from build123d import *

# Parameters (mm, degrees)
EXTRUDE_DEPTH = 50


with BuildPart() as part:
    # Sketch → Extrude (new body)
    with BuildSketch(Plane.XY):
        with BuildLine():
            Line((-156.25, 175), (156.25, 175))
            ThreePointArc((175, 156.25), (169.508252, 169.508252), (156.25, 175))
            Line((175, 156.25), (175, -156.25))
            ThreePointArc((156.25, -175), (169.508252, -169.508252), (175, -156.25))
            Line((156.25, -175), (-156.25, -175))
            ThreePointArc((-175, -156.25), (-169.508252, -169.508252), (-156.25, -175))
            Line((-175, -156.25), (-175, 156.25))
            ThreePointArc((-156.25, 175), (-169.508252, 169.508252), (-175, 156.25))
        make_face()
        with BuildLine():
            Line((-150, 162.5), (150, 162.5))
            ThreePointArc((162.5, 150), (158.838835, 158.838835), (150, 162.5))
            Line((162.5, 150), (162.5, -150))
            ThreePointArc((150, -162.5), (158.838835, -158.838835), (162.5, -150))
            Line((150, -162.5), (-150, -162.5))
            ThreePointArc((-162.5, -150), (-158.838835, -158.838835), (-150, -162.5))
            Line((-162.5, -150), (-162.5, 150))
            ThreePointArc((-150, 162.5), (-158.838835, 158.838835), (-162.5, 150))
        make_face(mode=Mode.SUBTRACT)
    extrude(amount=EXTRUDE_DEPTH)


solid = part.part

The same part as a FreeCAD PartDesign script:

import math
import FreeCAD as App
import Part
import Sketcher

V = App.Vector
Q = App.Units.Quantity

doc = App.newDocument("Part")
body = doc.addObject("PartDesign::Body", "Body")

# Sketch on XY plane
sketch1 = doc.addObject("Sketcher::SketchObject", "Sketch")
body.addObject(sketch1)
sketch1.AttachmentSupport = (doc.XY_Plane, [""])
sketch1.MapMode = "FlatFace"
sketch1.addGeometry(Part.LineSegment(V(156, 175, 0), V(-156, 175, 0)), False)
sketch1.addGeometry(Part.ArcOfCircle(Part.Circle(V(-156, 156, 0), V(0, 0, 1), 19), math.radians(90), math.radians(180)), False)
sketch1.addGeometry(Part.LineSegment(V(-175, 156, 0), V(-175, -156, 0)), False)
sketch1.addGeometry(Part.ArcOfCircle(Part.Circle(V(-156, -156, 0), V(0, 0, 1), 19), math.radians(-180), math.radians(-90)), False)
sketch1.addGeometry(Part.LineSegment(V(-156, -175, 0), V(156, -175, 0)), False)
sketch1.addGeometry(Part.ArcOfCircle(Part.Circle(V(156, -156, 0), V(0, 0, 1), 19), math.radians(-90), math.radians(0)), False)
sketch1.addGeometry(Part.LineSegment(V(175, -156, 0), V(175, 156, 0)), False)
sketch1.addGeometry(Part.ArcOfCircle(Part.Circle(V(156, 156, 0), V(0, 0, 1), 19), math.radians(0), math.radians(90)), False)
sketch1.addGeometry(Part.LineSegment(V(-150, 162, 0), V(150, 162, 0)), False)
sketch1.addGeometry(Part.ArcOfCircle(Part.Circle(V(150, 150, 0), V(0, 0, 1), 12), math.radians(0), math.radians(90)), False)
sketch1.addGeometry(Part.LineSegment(V(162, 150, 0), V(162, -150, 0)), False)
sketch1.addGeometry(Part.ArcOfCircle(Part.Circle(V(150, -150, 0), V(0, 0, 1), 12), math.radians(-90), math.radians(0)), False)
sketch1.addGeometry(Part.LineSegment(V(150, -162, 0), V(-150, -162, 0)), False)
sketch1.addGeometry(Part.ArcOfCircle(Part.Circle(V(-150, -150, 0), V(0, 0, 1), 12), math.radians(180), math.radians(270)), False)
sketch1.addGeometry(Part.LineSegment(V(-162, -150, 0), V(-162, 150, 0)), False)
sketch1.addGeometry(Part.ArcOfCircle(Part.Circle(V(-150, 150, 0), V(0, 0, 1), 12), math.radians(90), math.radians(180)), False)
sketch1.addConstraint(Sketcher.Constraint("Tangent", 0, 2, 1, 1))
sketch1.addConstraint(Sketcher.Constraint("Tangent", 1, 2, 2, 1))
sketch1.addConstraint(Sketcher.Constraint("Tangent", 2, 2, 3, 1))
sketch1.addConstraint(Sketcher.Constraint("Tangent", 3, 2, 4, 1))
sketch1.addConstraint(Sketcher.Constraint("Tangent", 4, 2, 5, 1))
sketch1.addConstraint(Sketcher.Constraint("Tangent", 5, 2, 6, 1))
sketch1.addConstraint(Sketcher.Constraint("Tangent", 6, 2, 7, 1))
sketch1.addConstraint(Sketcher.Constraint("Tangent", 7, 2, 0, 1))
sketch1.addConstraint(Sketcher.Constraint("Tangent", 8, 2, 9, 2))
sketch1.addConstraint(Sketcher.Constraint("Tangent", 9, 1, 10, 1))
sketch1.addConstraint(Sketcher.Constraint("Tangent", 10, 2, 11, 2))
sketch1.addConstraint(Sketcher.Constraint("Tangent", 11, 1, 12, 1))
sketch1.addConstraint(Sketcher.Constraint("Tangent", 12, 2, 13, 2))
sketch1.addConstraint(Sketcher.Constraint("Tangent", 13, 1, 14, 1))
sketch1.addConstraint(Sketcher.Constraint("Tangent", 14, 2, 15, 2))
sketch1.addConstraint(Sketcher.Constraint("Tangent", 15, 1, 8, 1))
sketch1.addConstraint(Sketcher.Constraint("Horizontal", 0))
sketch1.addConstraint(Sketcher.Constraint("Vertical", 2))
sketch1.addConstraint(Sketcher.Constraint("Horizontal", 4))
sketch1.addConstraint(Sketcher.Constraint("Vertical", 6))
sketch1.addConstraint(Sketcher.Constraint("Horizontal", 8))
sketch1.addConstraint(Sketcher.Constraint("Vertical", 10))
sketch1.addConstraint(Sketcher.Constraint("Horizontal", 12))
sketch1.addConstraint(Sketcher.Constraint("Vertical", 14))
sketch1.addConstraint(Sketcher.Constraint("Equal", 1, 3))
sketch1.addConstraint(Sketcher.Constraint("Equal", 3, 5))
sketch1.addConstraint(Sketcher.Constraint("Equal", 5, 7))
sketch1.addConstraint(Sketcher.Constraint("Equal", 9, 11))
sketch1.addConstraint(Sketcher.Constraint("Equal", 11, 13))
sketch1.addConstraint(Sketcher.Constraint("Equal", 13, 15))
sketch1.addConstraint(Sketcher.Constraint("Symmetric", 1, 3, 5, 3, -1, 1))
sketch1.addConstraint(Sketcher.Constraint("Symmetric", 9, 3, 13, 3, -1, 1))
sketch1.addConstraint(Sketcher.Constraint("Equal", 4, 2))
sketch1.addConstraint(Sketcher.Constraint("Equal", 12, 10))
sketch1.addConstraint(Sketcher.Constraint("Radius", 9, Q("12.499999 mm")))
sketch1.addConstraint(Sketcher.Constraint("DistanceX", 8, 1, 8, 2, Q("300 mm")))
sketch1.addConstraint(Sketcher.Constraint("Radius", 1, Q("18.750001 mm")))
sketch1.addConstraint(Sketcher.Constraint("DistanceX", 0, 2, 0, 1, Q("312.5 mm")))
pad1 = doc.addObject("PartDesign::Pad", "Pad")
body.addObject(pad1)
pad1.Profile = sketch1
pad1.Length = 50

doc.recompute()
